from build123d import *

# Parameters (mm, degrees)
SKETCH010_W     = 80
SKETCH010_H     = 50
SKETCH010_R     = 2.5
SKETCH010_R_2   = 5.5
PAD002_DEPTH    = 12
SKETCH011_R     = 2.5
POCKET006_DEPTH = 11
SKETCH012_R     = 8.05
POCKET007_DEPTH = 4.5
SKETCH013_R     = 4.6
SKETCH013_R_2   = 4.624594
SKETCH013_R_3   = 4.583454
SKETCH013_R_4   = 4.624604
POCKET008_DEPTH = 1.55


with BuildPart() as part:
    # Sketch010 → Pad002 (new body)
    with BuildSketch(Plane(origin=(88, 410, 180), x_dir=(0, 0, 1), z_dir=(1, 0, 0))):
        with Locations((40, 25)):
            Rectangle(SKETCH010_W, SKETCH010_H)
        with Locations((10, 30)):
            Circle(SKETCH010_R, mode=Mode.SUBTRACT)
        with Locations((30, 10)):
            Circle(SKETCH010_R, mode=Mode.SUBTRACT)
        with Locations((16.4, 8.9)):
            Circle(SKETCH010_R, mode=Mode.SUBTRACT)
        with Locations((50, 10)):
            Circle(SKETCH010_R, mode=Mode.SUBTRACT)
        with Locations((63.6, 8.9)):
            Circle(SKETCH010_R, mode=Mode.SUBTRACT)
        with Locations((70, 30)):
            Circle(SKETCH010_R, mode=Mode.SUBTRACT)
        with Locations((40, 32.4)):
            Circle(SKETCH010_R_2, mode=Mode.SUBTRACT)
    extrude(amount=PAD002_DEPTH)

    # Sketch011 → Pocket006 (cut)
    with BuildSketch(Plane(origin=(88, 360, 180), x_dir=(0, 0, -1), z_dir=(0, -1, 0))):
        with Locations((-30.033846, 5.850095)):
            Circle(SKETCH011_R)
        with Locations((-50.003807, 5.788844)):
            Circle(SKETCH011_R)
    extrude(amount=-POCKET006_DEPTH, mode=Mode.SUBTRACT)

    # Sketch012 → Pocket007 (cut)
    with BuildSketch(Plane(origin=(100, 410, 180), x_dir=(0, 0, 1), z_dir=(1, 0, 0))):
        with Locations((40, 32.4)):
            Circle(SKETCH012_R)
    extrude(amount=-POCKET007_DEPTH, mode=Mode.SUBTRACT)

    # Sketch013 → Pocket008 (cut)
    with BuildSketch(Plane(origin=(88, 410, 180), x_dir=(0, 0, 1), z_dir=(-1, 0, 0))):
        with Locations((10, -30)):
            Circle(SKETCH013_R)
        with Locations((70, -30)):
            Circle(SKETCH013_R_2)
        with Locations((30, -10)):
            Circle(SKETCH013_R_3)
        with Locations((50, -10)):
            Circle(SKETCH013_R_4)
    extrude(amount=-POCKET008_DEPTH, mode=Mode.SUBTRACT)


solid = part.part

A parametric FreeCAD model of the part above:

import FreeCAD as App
import Part
import Sketcher
from FreeCAD import Vector
Q = App.Units.Quantity


def add_polygon(sketch, points):
    """Adds a closed chain of lines whose ends are joined by coincident constraints."""
    first, n = sketch.GeometryCount, len(points)
    for a, b in zip(points, points[1:] + points[:1]):
        sketch.addGeometry(Part.LineSegment(App.Vector(*a, 0), App.Vector(*b, 0)), False)
    for i in range(n):
        sketch.addConstraint(Sketcher.Constraint("Coincident", first + i, 2, first + (i + 1) % n, 1))

doc = App.newDocument("Part")
params = doc.addObject("Spreadsheet::Sheet", "Params")
for row, (alias, value) in enumerate([
    ("sketch1_diameter", "5 mm"),
    ("sketch1_diameter2", "11 mm"),
    ("sketch1_width", "50 mm"),
    ("sketch1_height", "80 mm"),
    ("pad1_length", "12 mm"),
    ("sketch2_diameter", "5 mm"),
    ("pocket1_length", "11 mm"),
    ("sketch3_diameter", "16.1 mm"),
    ("pocket2_length", "4.5 mm"),
    ("sketch4_diameter", "9.2 mm"),
    ("pocket3_length", "1.55 mm"),
], start=1):
    params.set(f"A{row}", alias)
    params.set(f"B{row}", "=" + value)
    params.setAlias(f"B{row}", alias)

body = doc.addObject("PartDesign::Body", "Body")

sketch1 = body.newObject("Sketcher::SketchObject", "Sketch")
sketch1.AttachmentSupport = (doc.getObject("YZ_Plane"), [""])
sketch1.MapMode = "FlatFace"
sketch1.AttachmentOffset = App.Placement(Vector(0, 0, 88), App.Rotation())
add_polygon(sketch1, [(360, 180), (410, 180), (410, 260), (360, 260)])
sketch1.addGeometry(Part.Circle(Vector(401.1, 196.4, 0), Vector(0, 0, 1), 2.5), False)
sketch1.addGeometry(Part.Circle(Vector(400, 210, 0), Vector(0, 0, 1), 2.5), False)
sketch1.addGeometry(Part.Circle(Vector(400, 230, 0), Vector(0, 0, 1), 2.5), False)
sketch1.addGeometry(Part.Circle(Vector(401.1, 243.6, 0), Vector(0, 0, 1), 2.5), False)
sketch1.addGeometry(Part.Circle(Vector(380, 190, 0), Vector(0, 0, 1), 2.5), False)
sketch1.addGeometry(Part.Circle(Vector(380, 250, 0), Vector(0, 0, 1), 2.5), False)
sketch1.addGeometry(Part.Circle(Vector(377.6, 220, 0), Vector(0, 0, 1), 5.5), False)
sketch1.addConstraint([
    Sketcher.Constraint("Horizontal", 0),
    Sketcher.Constraint("Vertical", 1),
    Sketcher.Constraint("Horizontal", 2),
    Sketcher.Constraint("Vertical", 3),
    Sketcher.Constraint("Equal", 4, 5),
    Sketcher.Constraint("Equal", 5, 6),
    Sketcher.Constraint("Equal", 6, 7),
    Sketcher.Constraint("Equal", 7, 8),
    Sketcher.Constraint("Equal", 8, 9),
    Sketcher.Constraint("Vertical", 5, 3, 6, 3),
    Sketcher.Constraint("Vertical", 4, 3, 7, 3),
    Sketcher.Constraint("Vertical", 8, 3, 9, 3),
    Sketcher.Constraint("Diameter", 4, Q("5 mm")),
    Sketcher.Constraint("Diameter", 10, Q("11 mm")),
    Sketcher.Constraint("DistanceX", 0, 1, 0, 2, Q("50 mm")),
    Sketcher.Constraint("DistanceY", 1, 1, 1, 2, Q("80 mm")),
    Sketcher.Constraint("DistanceX", -1, 1, 5, 3, Q("400 mm")),
    Sketcher.Constraint("DistanceY", -1, 1, 5, 3, Q("210 mm")),
    Sketcher.Constraint("DistanceY", -1, 1, 6, 3, Q("230 mm")),
    Sketcher.Constraint("DistanceX", -1, 1, 8, 3, Q("380 mm")),
    Sketcher.Constraint("DistanceY", -1, 1, 8, 3, Q("190 mm")),
    Sketcher.Constraint("DistanceY", -1, 1, 9, 3, Q("250 mm")),
    Sketcher.Constraint("DistanceY", -1, 1, 10, 3, Q("220 mm")),
    Sketcher.Constraint("DistanceX", -1, 1, 0, 2, Q("410 mm")),
    Sketcher.Constraint("DistanceY", -1, 1, 0, 2, Q("180 mm")),
    Sketcher.Constraint("DistanceX", -1, 1, 4, 3, Q("401.1 mm")),
    Sketcher.Constraint("DistanceY", -1, 1, 4, 3, Q("196.4 mm")),
    Sketcher.Constraint("DistanceY", -1, 1, 7, 3, Q("243.6 mm")),
    Sketcher.Constraint("DistanceX", -1, 1, 10, 3, Q("377.6 mm")),
])
sketch1.setExpression("Constraints[16]", "Params.sketch1_diameter")
sketch1.setExpression("Constraints[17]", "Params.sketch1_diameter2")
sketch1.setExpression("Constraints[18]", "Params.sketch1_width")
sketch1.setExpression("Constraints[19]", "Params.sketch1_height")
pad1 = body.newObject("PartDesign::Pad", "Pad")
pad1.Profile = sketch1
pad1.setExpression("Length", "Params.pad1_length")

sketch2 = body.newObject("Sketcher::SketchObject", "Sketch001")
sketch2.AttachmentSupport = (doc.getObject("XZ_Plane"), [""])
sketch2.MapMode = "FlatFace"
sketch2.AttachmentOffset = App.Placement(Vector(0, 0, -360), App.Rotation())
sketch2.addGeometry([
    Part.Circle(Vector(93.850095, 210.033846, 0), Vector(0, 0, 1), 2.5),
    Part.Circle(Vector(93.788844, 230.003807, 0), Vector(0, 0, 1), 2.5),
], False)
sketch2.addConstraint([
    Sketcher.Constraint("Equal", 0, 1),
    Sketcher.Constraint("Diameter", 0, Q("5 mm")),
    Sketcher.Constraint("DistanceX", 1, 3, 0, 3, Q("0.061251 mm")),
    Sketcher.Constraint("DistanceY", 0, 3, 1, 3, Q("19.969961 mm")),
    Sketcher.Constraint("DistanceX", -1, 1, 0, 3, Q("93.850095 mm")),
    Sketcher.Constraint("DistanceY", -1, 1, 0, 3, Q("210.033846 mm")),
])
sketch2.setExpression("Constraints[1]", "Params.sketch2_diameter")
pocket1 = body.newObject("PartDesign::Pocket", "Pocket")
pocket1.Profile = sketch2
pocket1.setExpression("Length", "Params.pocket1_length")

sketch3 = body.newObject("Sketcher::SketchObject", "Sketch002")
sketch3.AttachmentSupport = (doc.getObject("YZ_Plane"), [""])
sketch3.MapMode = "FlatFace"
sketch3.AttachmentOffset = App.Placement(Vector(0, 0, 100), App.Rotation())
sketch3.addGeometry(Part.Circle(Vector(377.6, 220, 0), Vector(0, 0, 1), 8.05), False)
sketch3.addConstraint([
    Sketcher.Constraint("Diameter", 0, Q("16.1 mm")),
    Sketcher.Constraint("DistanceY", -1, 1, 0, 3, Q("220 mm")),
    Sketcher.Constraint("DistanceX", -1, 1, 0, 3, Q("377.6 mm")),
])
sketch3.setExpression("Constraints[0]", "Params.sketch3_diameter")
pocket2 = body.newObject("PartDesign::Pocket", "Pocket001")
pocket2.Profile = sketch3
pocket2.setExpression("Length", "Params.pocket2_length")

sketch4 = body.newObject("Sketcher::SketchObject", "Sketch003")
sketch4.AttachmentSupport = (doc.getObject("YZ_Plane"), [""])
sketch4.MapMode = "FlatFace"
sketch4.AttachmentOffset = App.Placement(Vector(0, 0, 88), App.Rotation())
sketch4.addGeometry([
    Part.Circle(Vector(380, 190, 0), Vector(0, 0, 1), 4.6),
    Part.Circle(Vector(380, 250, 0), Vector(0, 0, 1), 4.624594),
    Part.Circle(Vector(400, 210, 0), Vector(0, 0, 1), 4.583454),
    Part.Circle(Vector(400, 230, 0), Vector(0, 0, 1), 4.624604),
], False)
sketch4.addConstraint([
    Sketcher.Constraint("Vertical", 0, 3, 1, 3),
    Sketcher.Constraint("Vertical", 2, 3, 3, 3),
    Sketcher.Constraint("Diameter", 0, Q("9.2 mm")),
    Sketcher.Constraint("DistanceX", -1, 1, 0, 3, Q("380 mm")),
    Sketcher.Constraint("DistanceY", -1, 1, 0, 3, Q("190 mm")),
    Sketcher.Constraint("DistanceY", -1, 1, 1, 3, Q("250 mm")),
    Sketcher.Constraint("DistanceX", -1, 1, 2, 3, Q("400 mm")),
    Sketcher.Constraint("DistanceY", -1, 1, 2, 3, Q("210 mm")),
    Sketcher.Constraint("DistanceY", -1, 1, 3, 3, Q("230 mm")),
    Sketcher.Constraint("Diameter", 1, Q("9.249188 mm")),
    Sketcher.Constraint("Diameter", 2, Q("9.166908 mm")),
    Sketcher.Constraint("Diameter", 3, Q("9.249208 mm")),
])
sketch4.setExpression("Constraints[2]", "Params.sketch4_diameter")
pocket3 = body.newObject("PartDesign::Pocket", "Pocket002")
pocket3.Profile = sketch4
pocket3.setExpression("Length", "Params.pocket3_length")
pocket3.Reversed = True

doc.recompute()
